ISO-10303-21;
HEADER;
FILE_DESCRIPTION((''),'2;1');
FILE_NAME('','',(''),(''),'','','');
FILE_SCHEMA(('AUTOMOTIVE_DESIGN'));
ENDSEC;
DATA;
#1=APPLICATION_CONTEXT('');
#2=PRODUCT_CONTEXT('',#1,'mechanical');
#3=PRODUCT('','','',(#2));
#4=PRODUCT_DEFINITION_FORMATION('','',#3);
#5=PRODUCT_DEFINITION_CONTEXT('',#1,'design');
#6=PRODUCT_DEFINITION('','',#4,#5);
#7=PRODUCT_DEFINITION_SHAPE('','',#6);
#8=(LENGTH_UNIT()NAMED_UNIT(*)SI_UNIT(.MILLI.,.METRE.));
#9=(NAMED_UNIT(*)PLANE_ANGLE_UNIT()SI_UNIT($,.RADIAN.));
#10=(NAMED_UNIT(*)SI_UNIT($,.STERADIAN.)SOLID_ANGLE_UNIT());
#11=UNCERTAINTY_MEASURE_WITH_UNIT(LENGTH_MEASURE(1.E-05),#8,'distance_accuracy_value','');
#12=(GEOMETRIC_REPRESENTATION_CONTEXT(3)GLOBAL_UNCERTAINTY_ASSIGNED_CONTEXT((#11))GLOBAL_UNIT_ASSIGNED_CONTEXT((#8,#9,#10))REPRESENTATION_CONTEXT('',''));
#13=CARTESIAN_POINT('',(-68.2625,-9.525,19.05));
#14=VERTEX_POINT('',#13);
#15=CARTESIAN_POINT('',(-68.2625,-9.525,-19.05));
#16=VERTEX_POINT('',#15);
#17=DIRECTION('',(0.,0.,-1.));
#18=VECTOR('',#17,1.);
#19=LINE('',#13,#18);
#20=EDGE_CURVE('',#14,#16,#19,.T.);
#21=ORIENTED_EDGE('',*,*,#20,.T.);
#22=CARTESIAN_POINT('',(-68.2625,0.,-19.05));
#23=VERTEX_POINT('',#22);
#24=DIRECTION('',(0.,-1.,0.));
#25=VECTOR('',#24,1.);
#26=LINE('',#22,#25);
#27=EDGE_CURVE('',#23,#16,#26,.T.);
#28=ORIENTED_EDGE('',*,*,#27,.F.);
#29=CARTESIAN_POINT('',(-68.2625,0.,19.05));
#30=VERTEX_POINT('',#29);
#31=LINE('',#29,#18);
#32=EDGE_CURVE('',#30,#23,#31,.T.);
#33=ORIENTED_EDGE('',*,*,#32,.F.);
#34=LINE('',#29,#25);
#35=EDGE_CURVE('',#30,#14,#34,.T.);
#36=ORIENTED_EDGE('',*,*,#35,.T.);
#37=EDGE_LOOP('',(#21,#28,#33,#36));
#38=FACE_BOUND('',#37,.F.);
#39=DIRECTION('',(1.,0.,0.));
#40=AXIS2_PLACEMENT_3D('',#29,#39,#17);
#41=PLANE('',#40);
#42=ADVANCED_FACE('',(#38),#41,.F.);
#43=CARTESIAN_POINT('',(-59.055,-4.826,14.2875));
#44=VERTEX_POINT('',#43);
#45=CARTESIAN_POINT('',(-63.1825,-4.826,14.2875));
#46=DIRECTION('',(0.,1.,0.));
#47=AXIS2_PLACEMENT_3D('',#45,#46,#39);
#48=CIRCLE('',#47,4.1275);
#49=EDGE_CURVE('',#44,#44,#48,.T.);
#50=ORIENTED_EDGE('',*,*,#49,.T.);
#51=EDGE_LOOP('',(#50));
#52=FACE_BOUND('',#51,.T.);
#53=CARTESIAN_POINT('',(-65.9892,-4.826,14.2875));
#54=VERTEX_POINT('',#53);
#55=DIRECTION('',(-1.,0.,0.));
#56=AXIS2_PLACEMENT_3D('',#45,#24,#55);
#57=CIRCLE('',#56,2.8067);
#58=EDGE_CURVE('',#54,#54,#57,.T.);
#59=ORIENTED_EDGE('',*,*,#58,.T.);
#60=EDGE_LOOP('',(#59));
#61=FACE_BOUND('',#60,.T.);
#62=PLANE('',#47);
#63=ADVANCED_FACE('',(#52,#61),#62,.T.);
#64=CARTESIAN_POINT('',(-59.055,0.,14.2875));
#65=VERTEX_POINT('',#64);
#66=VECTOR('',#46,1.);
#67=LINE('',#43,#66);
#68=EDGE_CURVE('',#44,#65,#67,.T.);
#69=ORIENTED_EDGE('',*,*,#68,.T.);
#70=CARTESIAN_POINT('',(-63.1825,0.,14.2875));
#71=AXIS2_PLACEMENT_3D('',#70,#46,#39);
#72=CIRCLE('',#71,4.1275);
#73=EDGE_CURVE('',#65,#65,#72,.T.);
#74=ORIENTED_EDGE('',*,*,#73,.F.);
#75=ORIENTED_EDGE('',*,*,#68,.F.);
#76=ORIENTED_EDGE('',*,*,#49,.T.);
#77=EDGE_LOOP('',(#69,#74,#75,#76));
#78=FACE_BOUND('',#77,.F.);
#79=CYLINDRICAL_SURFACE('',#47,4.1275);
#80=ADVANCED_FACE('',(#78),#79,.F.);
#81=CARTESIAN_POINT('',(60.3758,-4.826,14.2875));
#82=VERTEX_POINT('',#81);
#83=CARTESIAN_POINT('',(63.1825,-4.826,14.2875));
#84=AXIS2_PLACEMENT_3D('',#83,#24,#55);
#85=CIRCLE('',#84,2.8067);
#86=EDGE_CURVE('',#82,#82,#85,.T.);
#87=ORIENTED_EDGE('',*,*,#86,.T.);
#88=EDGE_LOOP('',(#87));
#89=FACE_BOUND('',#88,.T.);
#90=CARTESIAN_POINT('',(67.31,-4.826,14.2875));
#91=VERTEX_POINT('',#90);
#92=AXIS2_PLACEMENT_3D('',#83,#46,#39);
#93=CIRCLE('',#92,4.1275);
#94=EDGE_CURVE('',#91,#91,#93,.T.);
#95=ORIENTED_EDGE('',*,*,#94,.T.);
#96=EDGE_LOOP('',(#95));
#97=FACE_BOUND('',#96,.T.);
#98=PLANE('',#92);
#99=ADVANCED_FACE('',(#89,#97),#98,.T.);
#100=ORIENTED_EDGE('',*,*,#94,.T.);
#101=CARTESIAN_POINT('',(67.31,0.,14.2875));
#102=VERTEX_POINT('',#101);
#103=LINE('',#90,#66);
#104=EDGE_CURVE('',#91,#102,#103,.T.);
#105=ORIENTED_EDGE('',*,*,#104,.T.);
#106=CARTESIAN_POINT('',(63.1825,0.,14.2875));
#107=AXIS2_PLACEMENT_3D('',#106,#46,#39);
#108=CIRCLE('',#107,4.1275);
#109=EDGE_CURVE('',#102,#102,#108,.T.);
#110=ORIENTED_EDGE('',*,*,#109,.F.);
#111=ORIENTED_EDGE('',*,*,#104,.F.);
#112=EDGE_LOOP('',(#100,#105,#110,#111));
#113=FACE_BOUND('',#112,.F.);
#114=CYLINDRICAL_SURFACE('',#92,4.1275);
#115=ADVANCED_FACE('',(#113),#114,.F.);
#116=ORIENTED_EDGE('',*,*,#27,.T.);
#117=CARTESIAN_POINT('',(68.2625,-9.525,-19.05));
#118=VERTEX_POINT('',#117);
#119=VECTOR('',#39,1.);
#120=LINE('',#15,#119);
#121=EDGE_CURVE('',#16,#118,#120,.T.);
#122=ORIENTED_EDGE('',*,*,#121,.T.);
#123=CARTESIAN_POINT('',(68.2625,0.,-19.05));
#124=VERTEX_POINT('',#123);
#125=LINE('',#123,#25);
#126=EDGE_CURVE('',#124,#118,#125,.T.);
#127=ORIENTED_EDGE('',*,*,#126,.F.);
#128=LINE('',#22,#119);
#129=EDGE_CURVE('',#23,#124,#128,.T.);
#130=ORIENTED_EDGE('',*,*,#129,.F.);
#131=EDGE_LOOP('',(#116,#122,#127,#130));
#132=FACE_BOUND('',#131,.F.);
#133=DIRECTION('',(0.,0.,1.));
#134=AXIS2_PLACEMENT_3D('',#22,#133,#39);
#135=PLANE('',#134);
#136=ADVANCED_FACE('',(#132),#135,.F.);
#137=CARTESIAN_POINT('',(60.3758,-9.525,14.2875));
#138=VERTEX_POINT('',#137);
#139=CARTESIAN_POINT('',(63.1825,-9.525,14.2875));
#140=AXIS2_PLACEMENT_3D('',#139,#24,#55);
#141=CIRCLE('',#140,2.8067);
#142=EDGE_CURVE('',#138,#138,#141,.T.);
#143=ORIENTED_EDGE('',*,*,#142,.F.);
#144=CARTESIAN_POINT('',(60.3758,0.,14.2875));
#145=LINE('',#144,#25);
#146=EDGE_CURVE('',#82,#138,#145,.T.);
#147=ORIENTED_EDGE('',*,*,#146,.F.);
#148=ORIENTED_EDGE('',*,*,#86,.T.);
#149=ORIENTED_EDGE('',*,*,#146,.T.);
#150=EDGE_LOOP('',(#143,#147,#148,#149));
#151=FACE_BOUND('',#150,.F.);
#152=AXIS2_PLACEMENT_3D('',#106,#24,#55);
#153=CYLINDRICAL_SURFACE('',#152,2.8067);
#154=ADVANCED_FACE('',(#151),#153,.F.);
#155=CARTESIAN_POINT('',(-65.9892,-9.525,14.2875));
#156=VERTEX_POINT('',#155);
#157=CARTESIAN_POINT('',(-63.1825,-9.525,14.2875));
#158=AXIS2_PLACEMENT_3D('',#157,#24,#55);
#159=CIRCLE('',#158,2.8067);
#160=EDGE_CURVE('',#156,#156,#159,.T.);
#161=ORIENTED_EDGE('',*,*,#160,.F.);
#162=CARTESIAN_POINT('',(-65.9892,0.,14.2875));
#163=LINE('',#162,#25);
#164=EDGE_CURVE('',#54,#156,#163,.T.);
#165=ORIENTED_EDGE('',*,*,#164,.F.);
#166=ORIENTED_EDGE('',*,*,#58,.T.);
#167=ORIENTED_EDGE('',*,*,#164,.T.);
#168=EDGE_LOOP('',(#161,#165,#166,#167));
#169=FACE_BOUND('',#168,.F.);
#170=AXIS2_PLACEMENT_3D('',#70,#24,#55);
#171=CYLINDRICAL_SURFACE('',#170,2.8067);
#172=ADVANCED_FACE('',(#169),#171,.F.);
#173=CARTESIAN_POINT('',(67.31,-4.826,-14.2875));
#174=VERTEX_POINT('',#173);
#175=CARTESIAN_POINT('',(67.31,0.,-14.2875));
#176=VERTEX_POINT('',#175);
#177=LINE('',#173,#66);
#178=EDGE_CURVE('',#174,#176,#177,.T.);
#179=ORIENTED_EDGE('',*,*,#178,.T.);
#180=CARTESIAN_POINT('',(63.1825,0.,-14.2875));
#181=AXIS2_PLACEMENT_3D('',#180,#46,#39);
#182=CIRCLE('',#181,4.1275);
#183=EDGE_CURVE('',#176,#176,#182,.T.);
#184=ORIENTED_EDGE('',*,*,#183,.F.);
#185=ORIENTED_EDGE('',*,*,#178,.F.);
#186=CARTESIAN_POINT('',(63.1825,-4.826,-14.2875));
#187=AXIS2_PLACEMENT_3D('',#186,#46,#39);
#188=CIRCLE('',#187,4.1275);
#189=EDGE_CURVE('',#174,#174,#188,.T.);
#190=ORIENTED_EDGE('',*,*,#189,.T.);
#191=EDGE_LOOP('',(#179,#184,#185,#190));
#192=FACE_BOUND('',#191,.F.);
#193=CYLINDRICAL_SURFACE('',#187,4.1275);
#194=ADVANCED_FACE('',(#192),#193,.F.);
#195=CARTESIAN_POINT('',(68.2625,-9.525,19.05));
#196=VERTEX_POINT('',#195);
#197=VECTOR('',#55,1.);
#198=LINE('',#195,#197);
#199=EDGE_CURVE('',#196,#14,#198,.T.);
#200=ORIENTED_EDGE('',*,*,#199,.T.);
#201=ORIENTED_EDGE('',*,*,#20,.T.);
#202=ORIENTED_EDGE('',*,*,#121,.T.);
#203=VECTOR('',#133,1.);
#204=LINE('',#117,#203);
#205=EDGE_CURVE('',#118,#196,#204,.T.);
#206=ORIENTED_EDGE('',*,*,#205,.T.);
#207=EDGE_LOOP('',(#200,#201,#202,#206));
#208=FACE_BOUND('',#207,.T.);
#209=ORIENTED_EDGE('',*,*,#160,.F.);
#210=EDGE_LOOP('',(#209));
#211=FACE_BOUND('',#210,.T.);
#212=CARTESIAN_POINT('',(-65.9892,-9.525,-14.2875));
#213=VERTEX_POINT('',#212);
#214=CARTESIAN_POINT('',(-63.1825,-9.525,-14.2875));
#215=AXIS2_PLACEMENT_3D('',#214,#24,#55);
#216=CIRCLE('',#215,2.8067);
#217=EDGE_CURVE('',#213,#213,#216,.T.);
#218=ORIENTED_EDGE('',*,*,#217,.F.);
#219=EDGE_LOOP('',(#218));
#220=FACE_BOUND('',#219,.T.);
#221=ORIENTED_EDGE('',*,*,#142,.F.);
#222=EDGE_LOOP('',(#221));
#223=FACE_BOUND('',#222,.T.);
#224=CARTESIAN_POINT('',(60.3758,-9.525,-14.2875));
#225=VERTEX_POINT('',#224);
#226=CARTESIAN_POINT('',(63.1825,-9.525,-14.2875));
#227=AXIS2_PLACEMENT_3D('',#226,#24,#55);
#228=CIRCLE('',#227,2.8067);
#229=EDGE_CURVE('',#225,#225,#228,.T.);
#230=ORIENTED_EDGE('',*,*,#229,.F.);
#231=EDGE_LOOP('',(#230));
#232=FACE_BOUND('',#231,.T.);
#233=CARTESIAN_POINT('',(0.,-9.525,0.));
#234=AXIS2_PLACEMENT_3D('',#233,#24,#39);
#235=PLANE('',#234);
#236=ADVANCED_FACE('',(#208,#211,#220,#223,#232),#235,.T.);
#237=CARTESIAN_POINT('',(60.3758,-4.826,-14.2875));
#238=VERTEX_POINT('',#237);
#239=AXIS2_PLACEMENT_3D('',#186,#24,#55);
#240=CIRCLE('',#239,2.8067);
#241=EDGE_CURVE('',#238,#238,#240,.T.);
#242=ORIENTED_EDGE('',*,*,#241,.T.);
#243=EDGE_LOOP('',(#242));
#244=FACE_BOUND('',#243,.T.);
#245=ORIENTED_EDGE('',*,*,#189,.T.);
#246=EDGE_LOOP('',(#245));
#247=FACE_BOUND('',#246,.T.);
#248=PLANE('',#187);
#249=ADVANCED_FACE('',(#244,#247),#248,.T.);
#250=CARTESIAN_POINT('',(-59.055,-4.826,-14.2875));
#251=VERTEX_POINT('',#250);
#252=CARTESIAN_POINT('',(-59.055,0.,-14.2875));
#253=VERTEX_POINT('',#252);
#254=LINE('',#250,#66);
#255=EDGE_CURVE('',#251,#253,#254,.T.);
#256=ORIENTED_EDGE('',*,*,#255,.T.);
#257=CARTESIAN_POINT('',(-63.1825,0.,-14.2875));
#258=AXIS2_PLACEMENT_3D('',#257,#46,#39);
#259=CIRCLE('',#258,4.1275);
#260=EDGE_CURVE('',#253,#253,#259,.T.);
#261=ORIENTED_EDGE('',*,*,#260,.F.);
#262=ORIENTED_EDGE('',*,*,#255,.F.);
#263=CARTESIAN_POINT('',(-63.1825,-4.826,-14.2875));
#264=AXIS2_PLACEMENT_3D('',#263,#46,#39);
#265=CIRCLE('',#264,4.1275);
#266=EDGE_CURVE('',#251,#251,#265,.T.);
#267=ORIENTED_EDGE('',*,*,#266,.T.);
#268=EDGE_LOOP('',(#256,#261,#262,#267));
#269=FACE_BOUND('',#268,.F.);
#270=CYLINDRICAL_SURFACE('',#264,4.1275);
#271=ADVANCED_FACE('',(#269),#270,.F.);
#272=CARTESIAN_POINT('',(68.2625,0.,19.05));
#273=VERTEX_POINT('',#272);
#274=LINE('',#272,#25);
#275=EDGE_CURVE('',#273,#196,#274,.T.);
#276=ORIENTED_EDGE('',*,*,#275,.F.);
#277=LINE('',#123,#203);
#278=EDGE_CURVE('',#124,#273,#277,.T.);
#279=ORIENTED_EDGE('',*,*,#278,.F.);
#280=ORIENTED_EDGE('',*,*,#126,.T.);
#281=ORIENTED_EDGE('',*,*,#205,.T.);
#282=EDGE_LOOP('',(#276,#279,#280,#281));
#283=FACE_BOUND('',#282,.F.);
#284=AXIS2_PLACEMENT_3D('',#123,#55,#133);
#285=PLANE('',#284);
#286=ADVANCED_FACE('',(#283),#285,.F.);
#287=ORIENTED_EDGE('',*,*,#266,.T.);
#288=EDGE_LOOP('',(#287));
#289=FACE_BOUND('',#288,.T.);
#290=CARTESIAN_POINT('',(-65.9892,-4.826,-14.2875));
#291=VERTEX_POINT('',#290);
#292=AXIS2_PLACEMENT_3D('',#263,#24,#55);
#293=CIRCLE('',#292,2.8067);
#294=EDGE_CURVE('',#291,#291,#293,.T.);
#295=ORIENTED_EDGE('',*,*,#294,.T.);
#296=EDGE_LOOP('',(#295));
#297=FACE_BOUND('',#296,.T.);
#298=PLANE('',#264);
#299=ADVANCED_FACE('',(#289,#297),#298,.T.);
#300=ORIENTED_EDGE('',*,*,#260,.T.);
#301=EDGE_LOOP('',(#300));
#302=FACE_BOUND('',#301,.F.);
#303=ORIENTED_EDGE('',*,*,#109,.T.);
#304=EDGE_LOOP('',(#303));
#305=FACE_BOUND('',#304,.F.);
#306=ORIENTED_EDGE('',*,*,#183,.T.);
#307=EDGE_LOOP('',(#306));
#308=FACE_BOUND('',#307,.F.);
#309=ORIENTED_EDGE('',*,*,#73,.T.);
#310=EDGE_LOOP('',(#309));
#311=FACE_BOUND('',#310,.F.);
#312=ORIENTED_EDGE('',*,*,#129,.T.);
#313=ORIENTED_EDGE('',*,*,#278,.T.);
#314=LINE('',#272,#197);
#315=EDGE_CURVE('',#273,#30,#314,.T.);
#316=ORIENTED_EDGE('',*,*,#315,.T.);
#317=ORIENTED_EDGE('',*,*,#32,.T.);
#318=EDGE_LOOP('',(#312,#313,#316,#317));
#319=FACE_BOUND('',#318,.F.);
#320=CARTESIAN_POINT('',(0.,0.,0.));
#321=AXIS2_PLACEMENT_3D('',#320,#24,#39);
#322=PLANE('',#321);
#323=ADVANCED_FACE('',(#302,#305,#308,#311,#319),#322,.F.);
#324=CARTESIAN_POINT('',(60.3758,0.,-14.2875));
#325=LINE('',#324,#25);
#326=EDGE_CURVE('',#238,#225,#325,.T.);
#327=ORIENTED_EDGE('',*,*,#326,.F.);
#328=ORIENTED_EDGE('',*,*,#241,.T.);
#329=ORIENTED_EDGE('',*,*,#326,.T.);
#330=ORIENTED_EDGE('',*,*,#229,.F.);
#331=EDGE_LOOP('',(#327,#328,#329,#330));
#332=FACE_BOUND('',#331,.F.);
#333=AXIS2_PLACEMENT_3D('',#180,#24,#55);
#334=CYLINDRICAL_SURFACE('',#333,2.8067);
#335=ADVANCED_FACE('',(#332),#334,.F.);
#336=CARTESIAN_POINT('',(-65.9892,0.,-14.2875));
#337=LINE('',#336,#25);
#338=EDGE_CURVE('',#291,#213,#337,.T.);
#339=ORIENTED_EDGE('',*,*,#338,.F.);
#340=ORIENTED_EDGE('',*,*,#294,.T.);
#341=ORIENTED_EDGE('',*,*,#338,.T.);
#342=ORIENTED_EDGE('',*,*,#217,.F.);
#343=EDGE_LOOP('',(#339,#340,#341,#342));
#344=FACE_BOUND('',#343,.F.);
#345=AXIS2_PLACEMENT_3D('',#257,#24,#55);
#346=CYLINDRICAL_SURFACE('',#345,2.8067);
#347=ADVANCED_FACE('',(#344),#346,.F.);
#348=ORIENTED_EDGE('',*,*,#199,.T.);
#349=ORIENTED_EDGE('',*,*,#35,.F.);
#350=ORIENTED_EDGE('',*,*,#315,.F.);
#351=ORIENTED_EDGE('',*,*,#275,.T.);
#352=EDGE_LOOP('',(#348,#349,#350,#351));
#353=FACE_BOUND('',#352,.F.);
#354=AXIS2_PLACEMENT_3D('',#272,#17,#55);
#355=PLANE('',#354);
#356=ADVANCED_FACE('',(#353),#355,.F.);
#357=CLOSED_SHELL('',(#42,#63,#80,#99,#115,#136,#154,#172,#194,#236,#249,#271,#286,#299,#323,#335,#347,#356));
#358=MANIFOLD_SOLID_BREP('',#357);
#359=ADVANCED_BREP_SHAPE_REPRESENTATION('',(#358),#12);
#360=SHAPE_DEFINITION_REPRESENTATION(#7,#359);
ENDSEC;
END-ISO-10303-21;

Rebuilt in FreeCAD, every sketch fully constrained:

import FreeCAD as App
import Part
import Sketcher

V = App.Vector
Q = App.Units.Quantity

doc = App.newDocument("Part")
body = doc.addObject("PartDesign::Body", "Body")

# Sketch on XZ plane
sketch1 = body.newObject("Sketcher::SketchObject", "Sketch")
sketch1.AttachmentSupport = (doc.getObject("XZ_Plane"), [""])
sketch1.MapMode = "FlatFace"
sketch1.addGeometry([
    Part.LineSegment(V(-68.2625, 19.05, 0), V(-68.2625, -19.05, 0)),
    Part.LineSegment(V(-68.2625, -19.05, 0), V(68.2625, -19.05, 0)),
    Part.LineSegment(V(68.2625, -19.05, 0), V(68.2625, 19.05, 0)),
    Part.LineSegment(V(68.2625, 19.05, 0), V(-68.2625, 19.05, 0)),
], False)
sketch1.addConstraint([
    Sketcher.Constraint("Coincident", 0, 2, 1, 1),
    Sketcher.Constraint("Coincident", 1, 2, 2, 1),
    Sketcher.Constraint("Coincident", 2, 2, 3, 1),
    Sketcher.Constraint("Coincident", 3, 2, 0, 1),
    Sketcher.Constraint("Vertical", 0),
    Sketcher.Constraint("Horizontal", 1),
    Sketcher.Constraint("Vertical", 2),
    Sketcher.Constraint("Horizontal", 3),
    Sketcher.Constraint("Symmetric", 0, 2, 2, 2, -1, 1),
    Sketcher.Constraint("DistanceY", 0, 2, 0, 1, Q("1.5 in")),
    Sketcher.Constraint("DistanceX", 1, 1, 1, 2, Q("5.375 in")),
])
pad1 = body.newObject("PartDesign::Pad", "Pad")
pad1.Profile = sketch1
pad1.Length = Q("0.375 in")

# Sketch on XZ plane
sketch2 = body.newObject("Sketcher::SketchObject", "Sketch001")
sketch2.AttachmentSupport = (doc.getObject("XZ_Plane"), [""])
sketch2.MapMode = "FlatFace"
sketch2.addGeometry([
    Part.Circle(V(-63.1825, -14.2875, 0), V(0, 0, 1), 2.8067),
    Part.Circle(V(-63.1825, 14.2875, 0), V(0, 0, 1), 2.8067),
    Part.Circle(V(63.1825, 14.2875, 0), V(0, 0, 1), 2.8067),
    Part.Circle(V(63.1825, -14.2875, 0), V(0, 0, 1), 2.8067),
], False)
sketch2.addConstraint([
    Sketcher.Constraint("Equal", 0, 1),
    Sketcher.Constraint("Equal", 1, 2),
    Sketcher.Constraint("Equal", 2, 3),
    Sketcher.Constraint("Symmetric", 0, 3, 2, 3, -1, 1),
    Sketcher.Constraint("Symmetric", 1, 3, 3, 3, -1, 1),
    Sketcher.Constraint("Symmetric", 1, 3, 2, 3, -2),
    Sketcher.Constraint("Diameter", 0, Q("0.221 in")),
    Sketcher.Constraint("DistanceY", 0, 3, -1, 1, Q("0.5625 in")),
    Sketcher.Constraint("DistanceX", 1, 3, 2, 3, Q("4.975 in")),
])
doc.recompute()
hole = body.newObject("PartDesign::Hole", "Hole")
hole.Profile = sketch2
hole.ThreadType = "None"
hole.Diameter = Q("0.221 in")
hole.DepthType = "Dimension"
hole.Depth = Q("0.375 in")
hole.DrillPoint = "Flat"
hole.HoleCutType = "Counterbore"
hole.HoleCutDiameter = Q("0.325 in")
hole.HoleCutDepth = Q("0.19 in")
hole.Reversed = True

doc.recompute()
